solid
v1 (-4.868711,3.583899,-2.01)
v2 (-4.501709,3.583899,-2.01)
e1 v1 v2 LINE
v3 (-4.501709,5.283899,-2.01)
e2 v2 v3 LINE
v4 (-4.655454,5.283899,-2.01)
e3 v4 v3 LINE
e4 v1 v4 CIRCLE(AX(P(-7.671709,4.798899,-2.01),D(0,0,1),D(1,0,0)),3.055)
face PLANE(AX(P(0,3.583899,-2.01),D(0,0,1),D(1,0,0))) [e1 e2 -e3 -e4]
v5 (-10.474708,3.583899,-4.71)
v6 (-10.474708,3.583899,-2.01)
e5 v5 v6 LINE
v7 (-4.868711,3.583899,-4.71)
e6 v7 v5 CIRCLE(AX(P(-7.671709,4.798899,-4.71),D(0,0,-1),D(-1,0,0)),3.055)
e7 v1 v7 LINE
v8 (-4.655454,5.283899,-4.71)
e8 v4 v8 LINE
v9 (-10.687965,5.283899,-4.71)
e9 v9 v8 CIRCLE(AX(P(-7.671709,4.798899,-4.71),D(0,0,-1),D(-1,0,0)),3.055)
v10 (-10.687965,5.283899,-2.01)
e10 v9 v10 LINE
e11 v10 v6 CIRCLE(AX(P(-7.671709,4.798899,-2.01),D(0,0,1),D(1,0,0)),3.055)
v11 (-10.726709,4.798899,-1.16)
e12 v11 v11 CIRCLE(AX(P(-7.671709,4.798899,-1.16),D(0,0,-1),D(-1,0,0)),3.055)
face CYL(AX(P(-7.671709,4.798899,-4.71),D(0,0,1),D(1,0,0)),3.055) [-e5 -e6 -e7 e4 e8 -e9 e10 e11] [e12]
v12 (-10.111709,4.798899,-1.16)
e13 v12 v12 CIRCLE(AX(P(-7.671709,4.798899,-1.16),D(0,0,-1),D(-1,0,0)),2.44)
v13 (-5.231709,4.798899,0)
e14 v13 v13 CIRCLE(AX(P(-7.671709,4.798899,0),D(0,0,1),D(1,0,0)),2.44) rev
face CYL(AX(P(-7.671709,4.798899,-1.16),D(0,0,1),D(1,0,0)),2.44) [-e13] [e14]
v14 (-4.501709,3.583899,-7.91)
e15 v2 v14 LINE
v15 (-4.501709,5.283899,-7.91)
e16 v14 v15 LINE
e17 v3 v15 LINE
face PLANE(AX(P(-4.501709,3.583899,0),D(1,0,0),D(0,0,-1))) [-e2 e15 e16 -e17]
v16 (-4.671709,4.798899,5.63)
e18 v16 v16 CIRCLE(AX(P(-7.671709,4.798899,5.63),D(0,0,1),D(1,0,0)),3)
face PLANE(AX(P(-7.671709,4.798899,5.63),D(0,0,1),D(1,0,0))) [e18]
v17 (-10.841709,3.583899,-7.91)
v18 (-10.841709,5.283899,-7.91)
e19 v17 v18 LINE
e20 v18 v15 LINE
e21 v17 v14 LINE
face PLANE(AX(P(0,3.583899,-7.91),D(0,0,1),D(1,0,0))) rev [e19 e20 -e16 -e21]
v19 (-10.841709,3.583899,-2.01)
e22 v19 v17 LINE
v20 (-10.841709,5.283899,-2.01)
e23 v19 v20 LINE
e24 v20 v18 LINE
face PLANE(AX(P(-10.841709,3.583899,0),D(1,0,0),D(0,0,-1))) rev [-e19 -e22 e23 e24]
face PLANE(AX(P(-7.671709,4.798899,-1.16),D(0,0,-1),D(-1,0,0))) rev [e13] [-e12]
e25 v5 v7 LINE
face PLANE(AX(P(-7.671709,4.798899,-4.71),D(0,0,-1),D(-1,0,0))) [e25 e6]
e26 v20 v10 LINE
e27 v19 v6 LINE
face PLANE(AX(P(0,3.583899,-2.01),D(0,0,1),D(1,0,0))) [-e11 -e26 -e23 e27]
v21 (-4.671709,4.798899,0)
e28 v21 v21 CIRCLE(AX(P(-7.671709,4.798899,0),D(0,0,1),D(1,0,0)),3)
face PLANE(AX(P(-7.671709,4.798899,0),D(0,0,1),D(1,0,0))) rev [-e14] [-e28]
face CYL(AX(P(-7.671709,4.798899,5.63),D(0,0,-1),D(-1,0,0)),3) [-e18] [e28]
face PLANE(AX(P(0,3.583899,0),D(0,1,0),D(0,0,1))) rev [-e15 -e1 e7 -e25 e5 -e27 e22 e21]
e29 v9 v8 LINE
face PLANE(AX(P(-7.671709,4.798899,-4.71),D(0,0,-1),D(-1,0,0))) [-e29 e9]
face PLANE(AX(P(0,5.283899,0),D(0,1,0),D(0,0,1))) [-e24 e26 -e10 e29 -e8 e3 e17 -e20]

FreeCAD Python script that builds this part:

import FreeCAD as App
import Part
import Sketcher

doc = App.newDocument("Part")
body = doc.addObject("PartDesign::Body", "Body")

sketch1 = body.newObject("Sketcher::SketchObject", "Sketch")
sketch1.AttachmentSupport = (doc.getObject("XY_Plane"), [""])
sketch1.MapMode = "FlatFace"
sketch1.addGeometry(Part.Circle(App.Vector(-7.671709, 4.798899, 0), App.Vector(0, 0, 1), 3), False)
sketch1.addConstraint(Sketcher.Constraint("Diameter", 0, 6.0))
sketch1.addConstraint(Sketcher.Constraint("DistanceY", -1, 1, 0, 3, 4.798899))
sketch1.addConstraint(Sketcher.Constraint("DistanceX", 0, 3, -1, 1, 7.671709))
pad1 = body.newObject("PartDesign::Pad", "Pad")
pad1.Profile = sketch1
pad1.Length = 5.63

sketch2 = body.newObject("Sketcher::SketchObject", "Sketch001")
sketch2.AttachmentSupport = (doc.getObject("XY_Plane"), [""])
sketch2.MapMode = "FlatFace"
sketch2.addGeometry(Part.Circle(App.Vector(-7.671709, 4.798899, 0), App.Vector(0, 0, 1), 2.44), False)
sketch2.addConstraint(Sketcher.Constraint("Diameter", 0, 4.88))
sketch2.addConstraint(Sketcher.Constraint("DistanceY", -1, 1, 0, 3, 4.798899))
sketch2.addConstraint(Sketcher.Constraint("DistanceX", 0, 3, -1, 1, 7.671709))
pad2 = body.newObject("PartDesign::Pad", "Pad001")
pad2.Profile = sketch2
pad2.Length = 1.16
pad2.Reversed = True

sketch3 = body.newObject("Sketcher::SketchObject", "Sketch002")
sketch3.AttachmentSupport = (doc.getObject("XY_Plane"), [""])
sketch3.MapMode = "FlatFace"
sketch3.AttachmentOffset = App.Placement(App.Vector(0, 0, -1.16), App.Rotation())
sketch3.addGeometry(Part.Circle(App.Vector(-7.671709, 4.798899, 0), App.Vector(0, 0, 1), 3.055), False)
sketch3.addConstraint(Sketcher.Constraint("Diameter", 0, 6.11))
sketch3.addConstraint(Sketcher.Constraint("DistanceY", -1, 1, 0, 3, 4.798899))
sketch3.addConstraint(Sketcher.Constraint("DistanceX", 0, 3, -1, 1, 7.671709))
pad3 = body.newObject("PartDesign::Pad", "Pad002")
pad3.Profile = sketch3
pad3.Length = 3.55
pad3.Reversed = True

sketch4 = body.newObject("Sketcher::SketchObject", "Sketch003")
sketch4.AttachmentSupport = (doc.getObject("XZ_Plane"), [""])
sketch4.MapMode = "FlatFace"
sketch4.AttachmentOffset = App.Placement(App.Vector(0, 0, -5.283899), App.Rotation())
sketch4.addGeometry(Part.LineSegment(App.Vector(-10.841709, -7.91, 0), App.Vector(-10.841709, -2.01, 0)), False)
sketch4.addGeometry(Part.LineSegment(App.Vector(-10.841709, -2.01, 0), App.Vector(-4.501709, -2.01, 0)), False)
sketch4.addGeometry(Part.LineSegment(App.Vector(-4.501709, -2.01, 0), App.Vector(-4.501709, -7.91, 0)), False)
sketch4.addGeometry(Part.LineSegment(App.Vector(-4.501709, -7.91, 0), App.Vector(-10.841709, -7.91, 0)), False)
sketch4.addConstraint(Sketcher.Constraint("Coincident", 0, 2, 1, 1))
sketch4.addConstraint(Sketcher.Constraint("Coincident", 1, 2, 2, 1))
sketch4.addConstraint(Sketcher.Constraint("Coincident", 2, 2, 3, 1))
sketch4.addConstraint(Sketcher.Constraint("Coincident", 3, 2, 0, 1))
sketch4.addConstraint(Sketcher.Constraint("Vertical", 0))
sketch4.addConstraint(Sketcher.Constraint("Horizontal", 1))
sketch4.addConstraint(Sketcher.Constraint("Vertical", 2))
sketch4.addConstraint(Sketcher.Constraint("Horizontal", 3))
sketch4.addConstraint(Sketcher.Constraint("DistanceY", 0, 1, 0, 2, 5.9))
sketch4.addConstraint(Sketcher.Constraint("DistanceX", 1, 1, 1, 2, 6.34))
sketch4.addConstraint(Sketcher.Constraint("DistanceY", 0, 2, -1, 1, 2.01))
sketch4.addConstraint(Sketcher.Constraint("DistanceX", 0, 2, -1, 1, 10.841709))
pad4 = body.newObject("PartDesign::Pad", "Pad003")
pad4.Profile = sketch4
pad4.Length = 1.7

doc.recompute()
